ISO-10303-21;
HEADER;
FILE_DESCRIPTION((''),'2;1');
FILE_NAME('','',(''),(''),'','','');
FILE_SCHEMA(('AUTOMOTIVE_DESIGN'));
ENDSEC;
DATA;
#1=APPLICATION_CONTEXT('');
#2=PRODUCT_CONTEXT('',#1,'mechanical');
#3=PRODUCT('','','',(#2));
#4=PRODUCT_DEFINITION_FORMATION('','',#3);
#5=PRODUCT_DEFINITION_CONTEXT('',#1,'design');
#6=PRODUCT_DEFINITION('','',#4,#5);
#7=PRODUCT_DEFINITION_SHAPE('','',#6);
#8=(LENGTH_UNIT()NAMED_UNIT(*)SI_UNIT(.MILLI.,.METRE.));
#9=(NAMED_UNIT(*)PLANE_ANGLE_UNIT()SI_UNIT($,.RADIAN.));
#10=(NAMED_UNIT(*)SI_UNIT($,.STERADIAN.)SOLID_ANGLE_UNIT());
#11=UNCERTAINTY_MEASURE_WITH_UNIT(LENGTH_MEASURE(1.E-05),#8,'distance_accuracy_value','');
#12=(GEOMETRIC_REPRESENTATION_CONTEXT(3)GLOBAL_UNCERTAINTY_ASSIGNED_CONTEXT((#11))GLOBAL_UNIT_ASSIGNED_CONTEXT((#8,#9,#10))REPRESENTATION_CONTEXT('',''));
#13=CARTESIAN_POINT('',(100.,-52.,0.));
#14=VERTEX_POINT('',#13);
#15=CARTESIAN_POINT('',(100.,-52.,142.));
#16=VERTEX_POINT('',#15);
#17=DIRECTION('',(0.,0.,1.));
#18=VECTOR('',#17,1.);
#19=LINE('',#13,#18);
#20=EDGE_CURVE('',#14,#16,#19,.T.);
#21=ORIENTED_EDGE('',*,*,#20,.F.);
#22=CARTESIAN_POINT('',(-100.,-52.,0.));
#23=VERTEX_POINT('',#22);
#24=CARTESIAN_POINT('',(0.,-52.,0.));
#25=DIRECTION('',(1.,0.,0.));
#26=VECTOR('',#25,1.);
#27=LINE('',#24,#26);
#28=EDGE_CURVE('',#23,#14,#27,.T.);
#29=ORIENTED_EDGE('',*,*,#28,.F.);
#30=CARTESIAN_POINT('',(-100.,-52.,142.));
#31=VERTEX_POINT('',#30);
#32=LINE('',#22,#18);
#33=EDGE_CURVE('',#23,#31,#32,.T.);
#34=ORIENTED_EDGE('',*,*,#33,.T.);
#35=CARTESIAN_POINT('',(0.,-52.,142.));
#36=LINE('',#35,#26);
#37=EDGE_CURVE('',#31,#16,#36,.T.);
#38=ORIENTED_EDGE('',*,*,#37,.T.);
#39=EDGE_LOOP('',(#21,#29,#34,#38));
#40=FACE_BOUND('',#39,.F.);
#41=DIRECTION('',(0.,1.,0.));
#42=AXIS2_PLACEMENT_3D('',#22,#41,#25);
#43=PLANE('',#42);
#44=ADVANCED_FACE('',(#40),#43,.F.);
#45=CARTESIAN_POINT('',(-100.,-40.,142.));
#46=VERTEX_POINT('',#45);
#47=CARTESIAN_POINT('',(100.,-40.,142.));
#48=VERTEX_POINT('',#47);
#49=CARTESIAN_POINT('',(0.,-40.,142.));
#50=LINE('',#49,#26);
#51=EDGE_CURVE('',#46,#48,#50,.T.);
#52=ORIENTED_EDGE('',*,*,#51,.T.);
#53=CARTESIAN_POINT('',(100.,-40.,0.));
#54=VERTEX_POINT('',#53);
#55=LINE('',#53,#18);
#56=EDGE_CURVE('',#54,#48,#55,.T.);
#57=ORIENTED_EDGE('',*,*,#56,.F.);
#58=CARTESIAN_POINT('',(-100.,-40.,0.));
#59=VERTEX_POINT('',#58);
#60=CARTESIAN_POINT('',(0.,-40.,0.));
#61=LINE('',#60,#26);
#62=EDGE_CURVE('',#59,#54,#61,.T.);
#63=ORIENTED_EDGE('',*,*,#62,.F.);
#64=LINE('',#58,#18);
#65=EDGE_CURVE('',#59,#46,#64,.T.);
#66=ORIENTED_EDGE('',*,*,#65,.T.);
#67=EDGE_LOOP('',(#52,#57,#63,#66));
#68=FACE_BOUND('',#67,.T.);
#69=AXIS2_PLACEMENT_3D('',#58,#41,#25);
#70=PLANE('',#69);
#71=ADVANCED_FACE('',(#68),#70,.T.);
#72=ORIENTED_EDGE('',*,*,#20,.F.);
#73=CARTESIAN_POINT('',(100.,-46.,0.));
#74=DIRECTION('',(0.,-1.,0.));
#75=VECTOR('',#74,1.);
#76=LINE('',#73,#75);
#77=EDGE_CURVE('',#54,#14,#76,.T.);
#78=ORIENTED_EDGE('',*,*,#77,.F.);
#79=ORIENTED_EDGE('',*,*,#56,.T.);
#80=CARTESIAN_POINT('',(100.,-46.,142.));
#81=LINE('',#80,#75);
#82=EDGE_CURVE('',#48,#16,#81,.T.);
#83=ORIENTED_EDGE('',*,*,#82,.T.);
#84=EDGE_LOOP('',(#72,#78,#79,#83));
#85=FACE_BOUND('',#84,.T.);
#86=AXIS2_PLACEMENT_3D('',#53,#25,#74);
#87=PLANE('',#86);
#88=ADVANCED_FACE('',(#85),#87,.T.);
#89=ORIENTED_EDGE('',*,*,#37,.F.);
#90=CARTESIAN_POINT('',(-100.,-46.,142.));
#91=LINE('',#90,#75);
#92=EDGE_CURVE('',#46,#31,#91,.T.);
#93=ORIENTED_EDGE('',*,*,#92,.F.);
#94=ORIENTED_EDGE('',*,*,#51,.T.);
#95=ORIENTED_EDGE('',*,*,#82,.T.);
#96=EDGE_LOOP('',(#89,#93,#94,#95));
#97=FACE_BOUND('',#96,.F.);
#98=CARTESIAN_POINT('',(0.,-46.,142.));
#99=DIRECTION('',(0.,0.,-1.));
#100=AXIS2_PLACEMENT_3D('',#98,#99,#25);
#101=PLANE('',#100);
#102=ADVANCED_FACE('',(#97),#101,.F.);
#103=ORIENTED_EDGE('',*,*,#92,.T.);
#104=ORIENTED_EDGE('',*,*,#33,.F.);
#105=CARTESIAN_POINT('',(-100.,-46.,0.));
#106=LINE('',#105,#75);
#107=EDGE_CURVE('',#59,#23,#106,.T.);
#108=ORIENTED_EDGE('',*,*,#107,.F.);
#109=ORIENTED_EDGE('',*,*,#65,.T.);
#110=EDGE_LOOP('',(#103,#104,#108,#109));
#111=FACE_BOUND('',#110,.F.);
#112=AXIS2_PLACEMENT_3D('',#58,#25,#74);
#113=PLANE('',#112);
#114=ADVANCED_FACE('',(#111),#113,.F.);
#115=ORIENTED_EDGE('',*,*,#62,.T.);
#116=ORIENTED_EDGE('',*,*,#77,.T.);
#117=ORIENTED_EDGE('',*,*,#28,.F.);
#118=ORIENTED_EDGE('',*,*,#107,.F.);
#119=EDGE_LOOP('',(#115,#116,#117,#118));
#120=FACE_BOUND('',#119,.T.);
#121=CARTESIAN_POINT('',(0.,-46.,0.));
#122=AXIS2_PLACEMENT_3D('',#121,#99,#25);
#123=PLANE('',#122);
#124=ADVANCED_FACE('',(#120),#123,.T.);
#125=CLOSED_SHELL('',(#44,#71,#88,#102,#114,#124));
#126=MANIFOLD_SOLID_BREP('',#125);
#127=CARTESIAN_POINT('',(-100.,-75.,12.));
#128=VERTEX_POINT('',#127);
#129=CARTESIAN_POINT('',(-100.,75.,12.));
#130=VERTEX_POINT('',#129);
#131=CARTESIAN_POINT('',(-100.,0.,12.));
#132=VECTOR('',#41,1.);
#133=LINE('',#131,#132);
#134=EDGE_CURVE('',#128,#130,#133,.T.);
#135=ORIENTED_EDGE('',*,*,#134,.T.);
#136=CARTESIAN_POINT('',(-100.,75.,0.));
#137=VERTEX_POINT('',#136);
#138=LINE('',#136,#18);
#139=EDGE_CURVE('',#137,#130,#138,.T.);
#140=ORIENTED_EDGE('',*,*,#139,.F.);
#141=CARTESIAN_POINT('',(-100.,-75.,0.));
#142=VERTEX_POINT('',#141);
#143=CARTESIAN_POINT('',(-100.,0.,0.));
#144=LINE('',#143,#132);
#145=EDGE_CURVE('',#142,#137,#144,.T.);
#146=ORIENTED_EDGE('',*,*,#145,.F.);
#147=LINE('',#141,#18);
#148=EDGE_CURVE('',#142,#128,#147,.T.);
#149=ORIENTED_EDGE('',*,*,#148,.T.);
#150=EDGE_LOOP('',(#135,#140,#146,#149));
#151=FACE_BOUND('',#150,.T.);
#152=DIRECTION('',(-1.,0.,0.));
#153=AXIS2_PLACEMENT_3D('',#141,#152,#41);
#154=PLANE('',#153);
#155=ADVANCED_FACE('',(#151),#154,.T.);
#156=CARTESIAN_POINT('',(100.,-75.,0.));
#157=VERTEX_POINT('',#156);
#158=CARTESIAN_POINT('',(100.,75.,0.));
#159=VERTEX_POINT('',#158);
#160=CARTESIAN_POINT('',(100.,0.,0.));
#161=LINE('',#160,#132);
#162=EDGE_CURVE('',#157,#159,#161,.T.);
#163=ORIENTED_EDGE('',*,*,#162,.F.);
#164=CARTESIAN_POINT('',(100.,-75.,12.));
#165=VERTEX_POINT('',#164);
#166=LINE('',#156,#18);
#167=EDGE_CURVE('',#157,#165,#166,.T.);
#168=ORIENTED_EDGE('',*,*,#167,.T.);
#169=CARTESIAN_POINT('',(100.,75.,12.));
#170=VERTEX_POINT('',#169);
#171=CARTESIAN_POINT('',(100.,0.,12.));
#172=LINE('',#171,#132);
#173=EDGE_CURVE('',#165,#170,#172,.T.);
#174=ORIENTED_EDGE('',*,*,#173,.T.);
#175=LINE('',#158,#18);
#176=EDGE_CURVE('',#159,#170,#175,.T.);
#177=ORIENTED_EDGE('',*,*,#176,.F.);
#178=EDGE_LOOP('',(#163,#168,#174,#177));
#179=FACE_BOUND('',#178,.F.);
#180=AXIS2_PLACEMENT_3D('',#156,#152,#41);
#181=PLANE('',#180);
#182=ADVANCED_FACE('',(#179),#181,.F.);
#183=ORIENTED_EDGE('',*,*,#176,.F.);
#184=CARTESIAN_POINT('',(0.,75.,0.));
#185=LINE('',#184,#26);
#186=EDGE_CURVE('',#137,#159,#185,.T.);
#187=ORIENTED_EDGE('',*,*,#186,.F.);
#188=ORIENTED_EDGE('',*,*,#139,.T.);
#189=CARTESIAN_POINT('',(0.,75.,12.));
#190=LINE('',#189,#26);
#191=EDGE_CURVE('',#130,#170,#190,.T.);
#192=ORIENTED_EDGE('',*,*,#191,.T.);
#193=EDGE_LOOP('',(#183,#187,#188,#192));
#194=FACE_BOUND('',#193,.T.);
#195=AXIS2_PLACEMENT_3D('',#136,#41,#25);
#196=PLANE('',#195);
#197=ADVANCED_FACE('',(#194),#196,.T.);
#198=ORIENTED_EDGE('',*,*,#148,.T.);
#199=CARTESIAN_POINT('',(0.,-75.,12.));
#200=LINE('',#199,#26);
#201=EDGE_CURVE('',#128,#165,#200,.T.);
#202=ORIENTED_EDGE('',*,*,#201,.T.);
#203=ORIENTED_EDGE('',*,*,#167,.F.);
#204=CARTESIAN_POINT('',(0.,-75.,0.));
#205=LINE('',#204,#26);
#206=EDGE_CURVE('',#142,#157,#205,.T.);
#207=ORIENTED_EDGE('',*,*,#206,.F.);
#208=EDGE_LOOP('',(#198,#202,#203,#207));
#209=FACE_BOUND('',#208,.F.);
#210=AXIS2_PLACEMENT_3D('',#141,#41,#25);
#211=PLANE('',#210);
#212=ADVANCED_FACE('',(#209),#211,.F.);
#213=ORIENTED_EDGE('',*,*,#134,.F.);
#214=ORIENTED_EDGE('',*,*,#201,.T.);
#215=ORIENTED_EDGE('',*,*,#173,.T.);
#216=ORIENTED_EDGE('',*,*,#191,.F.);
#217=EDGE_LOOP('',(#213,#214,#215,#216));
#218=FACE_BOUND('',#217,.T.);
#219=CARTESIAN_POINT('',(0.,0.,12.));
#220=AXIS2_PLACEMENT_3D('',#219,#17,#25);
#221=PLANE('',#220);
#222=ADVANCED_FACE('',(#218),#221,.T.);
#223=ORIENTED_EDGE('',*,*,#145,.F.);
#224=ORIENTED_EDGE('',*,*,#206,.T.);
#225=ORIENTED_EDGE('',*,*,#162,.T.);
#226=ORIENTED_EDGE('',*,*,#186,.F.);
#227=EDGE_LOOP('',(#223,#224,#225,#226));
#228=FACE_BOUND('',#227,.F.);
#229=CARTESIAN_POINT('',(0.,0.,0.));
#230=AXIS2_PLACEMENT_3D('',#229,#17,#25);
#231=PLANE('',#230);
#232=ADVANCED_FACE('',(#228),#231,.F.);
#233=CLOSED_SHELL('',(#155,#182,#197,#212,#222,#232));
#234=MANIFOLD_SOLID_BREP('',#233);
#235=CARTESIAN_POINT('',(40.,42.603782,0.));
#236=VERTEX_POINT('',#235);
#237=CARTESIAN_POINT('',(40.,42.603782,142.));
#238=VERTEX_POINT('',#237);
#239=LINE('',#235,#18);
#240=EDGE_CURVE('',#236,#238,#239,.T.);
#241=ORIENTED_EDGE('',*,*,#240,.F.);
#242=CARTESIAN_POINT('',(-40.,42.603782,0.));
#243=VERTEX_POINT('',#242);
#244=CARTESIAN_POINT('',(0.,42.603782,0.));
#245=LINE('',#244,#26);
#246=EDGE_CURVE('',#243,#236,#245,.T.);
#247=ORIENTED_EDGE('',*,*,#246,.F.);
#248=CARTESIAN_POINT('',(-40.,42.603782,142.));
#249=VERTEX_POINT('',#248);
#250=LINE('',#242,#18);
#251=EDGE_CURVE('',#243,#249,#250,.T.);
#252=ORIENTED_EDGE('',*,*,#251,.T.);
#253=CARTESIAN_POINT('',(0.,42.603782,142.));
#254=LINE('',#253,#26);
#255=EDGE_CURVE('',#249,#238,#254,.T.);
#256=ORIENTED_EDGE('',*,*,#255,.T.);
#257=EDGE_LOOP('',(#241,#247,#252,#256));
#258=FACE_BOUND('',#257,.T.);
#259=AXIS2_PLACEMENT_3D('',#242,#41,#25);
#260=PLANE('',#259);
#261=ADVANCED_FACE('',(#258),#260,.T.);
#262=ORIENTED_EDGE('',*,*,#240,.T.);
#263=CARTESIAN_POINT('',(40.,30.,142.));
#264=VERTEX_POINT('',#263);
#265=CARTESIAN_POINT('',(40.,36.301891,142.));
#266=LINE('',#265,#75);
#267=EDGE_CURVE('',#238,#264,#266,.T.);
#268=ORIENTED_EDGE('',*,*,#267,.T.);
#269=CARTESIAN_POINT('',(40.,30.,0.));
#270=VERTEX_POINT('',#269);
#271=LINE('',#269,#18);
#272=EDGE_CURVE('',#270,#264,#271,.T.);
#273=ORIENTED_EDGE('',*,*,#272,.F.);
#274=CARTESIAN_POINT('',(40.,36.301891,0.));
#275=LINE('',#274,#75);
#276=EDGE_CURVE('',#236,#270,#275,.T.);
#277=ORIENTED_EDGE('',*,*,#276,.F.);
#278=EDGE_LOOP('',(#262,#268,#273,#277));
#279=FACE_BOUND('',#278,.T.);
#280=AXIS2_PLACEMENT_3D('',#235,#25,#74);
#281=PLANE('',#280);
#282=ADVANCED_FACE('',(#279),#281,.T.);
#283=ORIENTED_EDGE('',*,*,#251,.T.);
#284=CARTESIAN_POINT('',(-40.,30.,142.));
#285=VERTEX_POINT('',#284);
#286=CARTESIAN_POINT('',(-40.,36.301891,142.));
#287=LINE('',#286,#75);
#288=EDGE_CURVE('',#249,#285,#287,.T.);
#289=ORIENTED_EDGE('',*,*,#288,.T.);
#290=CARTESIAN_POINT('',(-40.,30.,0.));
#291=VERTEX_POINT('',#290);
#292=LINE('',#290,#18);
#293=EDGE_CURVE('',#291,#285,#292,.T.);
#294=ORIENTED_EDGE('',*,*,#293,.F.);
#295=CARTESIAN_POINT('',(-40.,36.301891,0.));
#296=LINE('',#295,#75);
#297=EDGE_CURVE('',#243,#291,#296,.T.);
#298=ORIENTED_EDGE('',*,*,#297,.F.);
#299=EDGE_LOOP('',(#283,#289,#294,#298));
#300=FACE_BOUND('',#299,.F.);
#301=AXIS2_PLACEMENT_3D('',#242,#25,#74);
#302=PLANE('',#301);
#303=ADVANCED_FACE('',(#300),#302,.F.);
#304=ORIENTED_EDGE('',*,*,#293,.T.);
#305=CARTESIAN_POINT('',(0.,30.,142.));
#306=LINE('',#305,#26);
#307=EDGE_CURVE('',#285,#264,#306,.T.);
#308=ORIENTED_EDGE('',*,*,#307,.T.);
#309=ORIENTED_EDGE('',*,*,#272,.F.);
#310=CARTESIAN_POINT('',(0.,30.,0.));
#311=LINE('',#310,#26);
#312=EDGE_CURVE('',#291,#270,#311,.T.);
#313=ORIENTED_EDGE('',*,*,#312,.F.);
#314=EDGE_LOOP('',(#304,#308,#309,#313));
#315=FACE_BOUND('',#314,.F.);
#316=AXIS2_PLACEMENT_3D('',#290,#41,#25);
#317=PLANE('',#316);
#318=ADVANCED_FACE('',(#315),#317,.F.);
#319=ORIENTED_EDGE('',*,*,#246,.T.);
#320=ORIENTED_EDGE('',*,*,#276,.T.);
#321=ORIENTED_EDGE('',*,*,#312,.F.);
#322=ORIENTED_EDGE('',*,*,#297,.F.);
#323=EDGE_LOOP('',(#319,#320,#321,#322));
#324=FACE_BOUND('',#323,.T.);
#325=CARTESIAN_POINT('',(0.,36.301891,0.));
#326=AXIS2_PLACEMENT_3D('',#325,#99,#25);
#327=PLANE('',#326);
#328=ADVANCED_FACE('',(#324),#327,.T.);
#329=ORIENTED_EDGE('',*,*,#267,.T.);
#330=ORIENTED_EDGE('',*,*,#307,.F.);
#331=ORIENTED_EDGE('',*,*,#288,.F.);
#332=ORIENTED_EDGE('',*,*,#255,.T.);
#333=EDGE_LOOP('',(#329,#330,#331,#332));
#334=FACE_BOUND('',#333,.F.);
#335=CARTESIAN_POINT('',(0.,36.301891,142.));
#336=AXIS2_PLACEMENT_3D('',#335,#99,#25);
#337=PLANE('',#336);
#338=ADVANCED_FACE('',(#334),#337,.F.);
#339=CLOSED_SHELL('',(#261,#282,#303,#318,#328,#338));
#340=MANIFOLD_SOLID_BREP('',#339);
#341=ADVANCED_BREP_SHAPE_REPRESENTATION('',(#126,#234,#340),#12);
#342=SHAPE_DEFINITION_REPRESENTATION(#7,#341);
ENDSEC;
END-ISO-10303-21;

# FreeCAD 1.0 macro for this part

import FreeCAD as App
import Part
import Sketcher

V = App.Vector
Q = App.Units.Quantity


def add_polygon(sketch, points):
    """Adds a closed chain of lines whose ends are joined by coincident constraints."""
    first, n = sketch.GeometryCount, len(points)
    for a, b in zip(points, points[1:] + points[:1]):
        sketch.addGeometry(Part.LineSegment(App.Vector(*a, 0), App.Vector(*b, 0)), False)
    for i in range(n):
        sketch.addConstraint(Sketcher.Constraint("Coincident", first + i, 2, first + (i + 1) % n, 1))

doc = App.newDocument("Part")
body = doc.addObject("PartDesign::Body", "Body")

# Sketch on XY plane
sketch1 = doc.addObject("Sketcher::SketchObject", "Sketch")
body.addObject(sketch1)
sketch1.AttachmentSupport = (doc.XY_Plane, [""])
sketch1.MapMode = "FlatFace"
add_polygon(sketch1, [(-100, 75), (-100, -75), (100, -75), (100, 75)])  # lines 0-3
sketch1.addConstraint(Sketcher.Constraint("Vertical", 0))
sketch1.addConstraint(Sketcher.Constraint("Horizontal", 1))
sketch1.addConstraint(Sketcher.Constraint("Vertical", 2))
sketch1.addConstraint(Sketcher.Constraint("Horizontal", 3))
sketch1.addConstraint(Sketcher.Constraint("Symmetric", 0, 2, 2, 2, -1, 1))
sketch1.addConstraint(Sketcher.Constraint("DistanceX", 1, 1, 1, 2, Q("200 mm")))
sketch1.addConstraint(Sketcher.Constraint("DistanceY", 0, 2, 0, 1, Q("150 mm")))
pad1 = doc.addObject("PartDesign::Pad", "Pad")
body.addObject(pad1)
pad1.Profile = sketch1
pad1.Length = 12
body2 = doc.addObject("PartDesign::Body", "Body001")
body2.AllowCompound = True

# Sketch on XY plane
sketch2 = doc.addObject("Sketcher::SketchObject", "Sketch001")
body2.addObject(sketch2)
sketch2.AttachmentSupport = (doc.getObject("XY_Plane001"), [""])
sketch2.MapMode = "FlatFace"
add_polygon(sketch2, [(-100, -52), (-100, -40), (100, -40), (100, -52)])  # lines 0-3
add_polygon(sketch2, [(-40, 30), (-40, 43), (40, 43), (40, 30)])  # lines 4-7
sketch2.addConstraint(Sketcher.Constraint("Vertical", 0))
sketch2.addConstraint(Sketcher.Constraint("Horizontal", 1))
sketch2.addConstraint(Sketcher.Constraint("Vertical", 2))
sketch2.addConstraint(Sketcher.Constraint("Horizontal", 3))
sketch2.addConstraint(Sketcher.Constraint("Vertical", 4))
sketch2.addConstraint(Sketcher.Constraint("Horizontal", 5))
sketch2.addConstraint(Sketcher.Constraint("Vertical", 6))
sketch2.addConstraint(Sketcher.Constraint("Horizontal", 7))
sketch2.addConstraint(Sketcher.Constraint("DistanceX", 1, 1, 1, 2, Q("200 mm")))
sketch2.addConstraint(Sketcher.Constraint("DistanceX", 5, 1, 5, 2, Q("80 mm")))
sketch2.addConstraint(Sketcher.Constraint("DistanceY", 0, 1, 0, 2, Q("12 mm")))
sketch2.addConstraint(Sketcher.Constraint("DistanceX", 0, 2, -1, 1, Q("100 mm")))
sketch2.addConstraint(Sketcher.Constraint("DistanceY", 0, 2, -1, 1, Q("40 mm")))
sketch2.addConstraint(Sketcher.Constraint("DistanceX", 4, 2, -1, 1, Q("40 mm")))
sketch2.addConstraint(Sketcher.Constraint("DistanceY", -1, 1, 6, 2, Q("30 mm")))
sketch2.addConstraint(Sketcher.Constraint("DistanceY", 4, 1, 4, 2, Q("12.603782 mm")))
pad2 = doc.addObject("PartDesign::Pad", "Pad001")
body2.addObject(pad2)
pad2.Profile = sketch2
pad2.Length = 142

doc.recompute()
